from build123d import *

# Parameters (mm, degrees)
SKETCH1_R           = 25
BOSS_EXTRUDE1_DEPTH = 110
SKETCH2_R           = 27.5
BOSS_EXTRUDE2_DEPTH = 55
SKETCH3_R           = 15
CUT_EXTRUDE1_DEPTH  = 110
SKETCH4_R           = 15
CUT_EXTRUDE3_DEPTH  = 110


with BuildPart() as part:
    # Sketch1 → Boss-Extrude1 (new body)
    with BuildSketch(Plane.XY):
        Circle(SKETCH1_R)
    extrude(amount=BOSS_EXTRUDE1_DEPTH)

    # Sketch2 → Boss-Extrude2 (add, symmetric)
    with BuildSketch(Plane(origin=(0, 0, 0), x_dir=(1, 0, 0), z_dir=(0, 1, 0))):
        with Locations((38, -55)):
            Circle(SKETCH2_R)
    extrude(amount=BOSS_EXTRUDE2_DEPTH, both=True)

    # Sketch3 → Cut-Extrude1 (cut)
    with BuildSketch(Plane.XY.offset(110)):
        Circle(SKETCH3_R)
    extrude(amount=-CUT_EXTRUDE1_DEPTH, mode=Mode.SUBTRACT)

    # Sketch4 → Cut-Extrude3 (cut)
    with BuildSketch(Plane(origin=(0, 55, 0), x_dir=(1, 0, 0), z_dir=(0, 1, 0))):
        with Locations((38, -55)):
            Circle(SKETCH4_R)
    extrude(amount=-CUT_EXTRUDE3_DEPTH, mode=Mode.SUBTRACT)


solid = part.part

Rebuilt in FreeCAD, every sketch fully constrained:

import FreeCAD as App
import Part
import Sketcher
from FreeCAD import Vector
Q = App.Units.Quantity

doc = App.newDocument("Part")
params = doc.addObject("Spreadsheet::Sheet", "Params")
for row, (alias, value) in enumerate([
    ("sketch1_diameter", "50 mm"),
    ("pad1_length", "110 mm"),
    ("sketch2_diameter", "55 mm"),
    ("pad2_length", "110 mm"),
    ("sketch3_diameter", "30 mm"),
    ("pocket1_length", "110 mm"),
    ("sketch4_diameter", "30 mm"),
    ("pocket2_length", "110 mm"),
], start=1):
    params.set(f"A{row}", alias)
    params.set(f"B{row}", "=" + value)
    params.setAlias(f"B{row}", alias)

body = doc.addObject("PartDesign::Body", "Body")

sketch1 = body.newObject("Sketcher::SketchObject", "Sketch")
sketch1.AttachmentSupport = (doc.getObject("XY_Plane"), [""])
sketch1.MapMode = "FlatFace"
sketch1.addGeometry(Part.Circle(Vector(0, 0, 0), Vector(0, 0, 1), 25), False)
sketch1.addConstraint([
    Sketcher.Constraint("Coincident", 0, 3, -1, 1),
    Sketcher.Constraint("Diameter", 0, Q("50 mm")),
])
sketch1.setExpression("Constraints[1]", "Params.sketch1_diameter")
pad1 = body.newObject("PartDesign::Pad", "Pad")
pad1.Profile = sketch1
pad1.setExpression("Length", "Params.pad1_length")

sketch2 = body.newObject("Sketcher::SketchObject", "Sketch001")
sketch2.AttachmentSupport = (doc.getObject("XZ_Plane"), [""])
sketch2.MapMode = "FlatFace"
sketch2.addGeometry(Part.Circle(Vector(38, 55, 0), Vector(0, 0, 1), 28), False)
sketch2.addConstraint([
    Sketcher.Constraint("Diameter", 0, Q("55 mm")),
    Sketcher.Constraint("DistanceX", -1, 1, 0, 3, Q("38 mm")),
    Sketcher.Constraint("DistanceY", -1, 1, 0, 3, Q("55 mm")),
])
sketch2.setExpression("Constraints[0]", "Params.sketch2_diameter")
pad2 = body.newObject("PartDesign::Pad", "Pad001")
pad2.Profile = sketch2
pad2.setExpression("Length", "Params.pad2_length")
pad2.Midplane = True

sketch3 = body.newObject("Sketcher::SketchObject", "Sketch002")
sketch3.AttachmentSupport = (doc.getObject("XY_Plane"), [""])
sketch3.MapMode = "FlatFace"
sketch3.AttachmentOffset = App.Placement(Vector(0, 0, 110), App.Rotation())
sketch3.addGeometry(Part.Circle(Vector(0, 0, 0), Vector(0, 0, 1), 15), False)
sketch3.addConstraint([
    Sketcher.Constraint("Coincident", 0, 3, -1, 1),
    Sketcher.Constraint("Diameter", 0, Q("30 mm")),
])
sketch3.setExpression("Constraints[1]", "Params.sketch3_diameter")
pocket1 = body.newObject("PartDesign::Pocket", "Pocket")
pocket1.Profile = sketch3
pocket1.setExpression("Length", "Params.pocket1_length")

sketch4 = body.newObject("Sketcher::SketchObject", "Sketch003")
sketch4.AttachmentSupport = (doc.getObject("XZ_Plane"), [""])
sketch4.MapMode = "FlatFace"
sketch4.AttachmentOffset = App.Placement(Vector(0, 0, -55), App.Rotation())
sketch4.addGeometry(Part.Circle(Vector(38, 55, 0), Vector(0, 0, 1), 15), False)
sketch4.addConstraint([
    Sketcher.Constraint("Diameter", 0, Q("30 mm")),
    Sketcher.Constraint("DistanceX", -1, 1, 0, 3, Q("38 mm")),
    Sketcher.Constraint("DistanceY", -1, 1, 0, 3, Q("55 mm")),
])
sketch4.setExpression("Constraints[0]", "Params.sketch4_diameter")
pocket2 = body.newObject("PartDesign::Pocket", "Pocket001")
pocket2.Profile = sketch4
pocket2.setExpression("Length", "Params.pocket2_length")
pocket2.Reversed = True

doc.recompute()
